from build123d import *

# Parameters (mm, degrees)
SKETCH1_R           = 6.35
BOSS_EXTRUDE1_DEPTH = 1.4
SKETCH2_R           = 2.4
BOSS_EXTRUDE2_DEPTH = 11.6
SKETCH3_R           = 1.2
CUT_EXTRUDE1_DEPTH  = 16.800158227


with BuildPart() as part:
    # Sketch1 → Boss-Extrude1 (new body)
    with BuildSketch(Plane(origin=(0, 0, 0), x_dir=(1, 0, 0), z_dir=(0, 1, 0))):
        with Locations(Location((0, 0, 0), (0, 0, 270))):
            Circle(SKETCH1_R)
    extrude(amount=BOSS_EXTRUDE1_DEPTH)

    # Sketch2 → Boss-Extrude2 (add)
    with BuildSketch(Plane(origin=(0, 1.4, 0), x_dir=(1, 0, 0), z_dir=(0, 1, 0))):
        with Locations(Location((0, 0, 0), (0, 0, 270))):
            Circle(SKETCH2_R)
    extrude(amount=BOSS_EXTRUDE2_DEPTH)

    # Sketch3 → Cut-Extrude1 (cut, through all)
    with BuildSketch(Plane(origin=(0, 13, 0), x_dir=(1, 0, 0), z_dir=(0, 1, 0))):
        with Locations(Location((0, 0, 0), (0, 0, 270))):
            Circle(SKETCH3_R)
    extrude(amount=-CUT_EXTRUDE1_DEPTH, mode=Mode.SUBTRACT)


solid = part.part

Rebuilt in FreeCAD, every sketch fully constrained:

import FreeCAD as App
import Part
import Sketcher

doc = App.newDocument("Part")
body = doc.addObject("PartDesign::Body", "Body")

# Sketch on XZ plane
sketch1 = body.newObject("Sketcher::SketchObject", "Sketch")
sketch1.AttachmentSupport = (doc.getObject("XZ_Plane"), [""])
sketch1.MapMode = "FlatFace"
sketch1.addGeometry(Part.Circle(App.Vector(0, 0, 0), App.Vector(0, 0, 1), 6), False)
sketch1.addConstraint([
    Sketcher.Constraint("Coincident", 0, 3, -1, 1),
    Sketcher.Constraint("Diameter", 0, 12.7),
])
pad1 = body.newObject("PartDesign::Pad", "Pad")
pad1.Profile = sketch1
pad1.Length = 1.4
pad1.Reversed = True

# Sketch on XZ plane
sketch2 = body.newObject("Sketcher::SketchObject", "Sketch001")
sketch2.AttachmentSupport = (doc.getObject("XZ_Plane"), [""])
sketch2.MapMode = "FlatFace"
sketch2.AttachmentOffset = App.Placement(App.Vector(0, 0, -1.4), App.Rotation())
sketch2.addGeometry(Part.Circle(App.Vector(0, 0, 0), App.Vector(0, 0, 1), 2.4), False)
sketch2.addConstraint([
    Sketcher.Constraint("Coincident", 0, 3, -1, 1),
    Sketcher.Constraint("Diameter", 0, 4.8),
])
pad2 = body.newObject("PartDesign::Pad", "Pad001")
pad2.Profile = sketch2
pad2.Length = 11.6
pad2.Reversed = True

# Sketch on XZ plane
sketch3 = body.newObject("Sketcher::SketchObject", "Sketch002")
sketch3.AttachmentSupport = (doc.getObject("XZ_Plane"), [""])
sketch3.MapMode = "FlatFace"
sketch3.AttachmentOffset = App.Placement(App.Vector(0, 0, -13), App.Rotation())
sketch3.addGeometry(Part.Circle(App.Vector(0, 0, 0), App.Vector(0, 0, 1), 1.2), False)
sketch3.addConstraint([
    Sketcher.Constraint("Coincident", 0, 3, -1, 1),
    Sketcher.Constraint("Diameter", 0, 2.4),
])
pocket1 = body.newObject("PartDesign::Pocket", "Pocket")
pocket1.Profile = sketch3
pocket1.Type = "ThroughAll"
pocket1.Reversed = True

doc.recompute()
